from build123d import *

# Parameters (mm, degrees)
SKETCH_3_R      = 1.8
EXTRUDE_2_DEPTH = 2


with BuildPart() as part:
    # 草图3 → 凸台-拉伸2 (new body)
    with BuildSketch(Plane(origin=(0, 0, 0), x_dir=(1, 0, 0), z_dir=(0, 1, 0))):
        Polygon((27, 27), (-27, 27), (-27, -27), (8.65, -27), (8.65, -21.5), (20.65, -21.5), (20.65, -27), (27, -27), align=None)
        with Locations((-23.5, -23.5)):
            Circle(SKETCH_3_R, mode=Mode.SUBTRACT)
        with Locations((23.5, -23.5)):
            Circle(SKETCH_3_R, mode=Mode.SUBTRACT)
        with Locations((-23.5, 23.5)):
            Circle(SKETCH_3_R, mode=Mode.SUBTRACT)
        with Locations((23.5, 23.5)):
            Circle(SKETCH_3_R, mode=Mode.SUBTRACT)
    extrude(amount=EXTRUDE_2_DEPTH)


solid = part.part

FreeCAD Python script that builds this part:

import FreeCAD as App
import Part
import Sketcher

V = App.Vector
Q = App.Units.Quantity


def add_polygon(sketch, points):
    """Adds a closed chain of lines whose ends are joined by coincident constraints."""
    first, n = sketch.GeometryCount, len(points)
    for a, b in zip(points, points[1:] + points[:1]):
        sketch.addGeometry(Part.LineSegment(App.Vector(*a, 0), App.Vector(*b, 0)), False)
    for i in range(n):
        sketch.addConstraint(Sketcher.Constraint("Coincident", first + i, 2, first + (i + 1) % n, 1))

doc = App.newDocument("Part")
body = doc.addObject("PartDesign::Body", "Body")

# Sketch on XZ plane
sketch1 = doc.addObject("Sketcher::SketchObject", "Sketch")
body.addObject(sketch1)
sketch1.AttachmentSupport = (doc.XZ_Plane, [""])
sketch1.MapMode = "FlatFace"
add_polygon(sketch1, [(27, -27), (-27, -27), (-27, 27), (8.7, 27), (8.7, 21.5), (20.6, 21.5), (20.6, 27), (27, 27)])  # lines 0-7
sketch1.addGeometry(Part.Circle(V(-23.5, 23.5, 0), V(0, 0, 1), 1.8), False)  # 8
sketch1.addGeometry(Part.Circle(V(23.5, 23.5, 0), V(0, 0, 1), 1.8), False)  # 9
sketch1.addGeometry(Part.Circle(V(-23.5, -23.5, 0), V(0, 0, 1), 1.8), False)  # 10
sketch1.addGeometry(Part.Circle(V(23.5, -23.5, 0), V(0, 0, 1), 1.8), False)  # 11
sketch1.addConstraint([
    Sketcher.Constraint("Horizontal", 0),
    Sketcher.Constraint("Vertical", 1),
    Sketcher.Constraint("Horizontal", 2),
    Sketcher.Constraint("Vertical", 3),
    Sketcher.Constraint("Horizontal", 4),
    Sketcher.Constraint("Vertical", 5),
    Sketcher.Constraint("Horizontal", 6),
    Sketcher.Constraint("Vertical", 7),
    Sketcher.Constraint("Equal", 8, 9),
    Sketcher.Constraint("Equal", 9, 10),
    Sketcher.Constraint("Equal", 10, 11),
    Sketcher.Constraint("Symmetric", 9, 3, 10, 3, -1, 1),
    Sketcher.Constraint("Symmetric", 8, 3, 11, 3, -1, 1),
    Sketcher.Constraint("Symmetric", 0, 2, 6, 2, -1, 1),
    Sketcher.Constraint("Symmetric", 8, 3, 9, 3, -2),
    Sketcher.Constraint("Horizontal", 2, 2, 5, 2),
    Sketcher.Constraint("Equal", 0, 1),
    Sketcher.Constraint("Diameter", 8, Q("3.6 mm")),
    Sketcher.Constraint("DistanceX", 0, 2, 0, 1, Q("54 mm")),
    Sketcher.Constraint("DistanceX", 4, 1, 4, 2, Q("12 mm")),
    Sketcher.Constraint("DistanceY", 3, 2, 3, 1, Q("5.5 mm")),
    Sketcher.Constraint("DistanceX", 8, 3, 9, 3, Q("47 mm")),
    Sketcher.Constraint("DistanceY", 10, 3, 8, 3, Q("47 mm")),
    Sketcher.Constraint("DistanceX", 2, 1, 2, 2, Q("35.65 mm")),
])
pad1 = doc.addObject("PartDesign::Pad", "Pad")
body.addObject(pad1)
pad1.Profile = sketch1
pad1.Length = 2
pad1.Reversed = True

doc.recompute()
